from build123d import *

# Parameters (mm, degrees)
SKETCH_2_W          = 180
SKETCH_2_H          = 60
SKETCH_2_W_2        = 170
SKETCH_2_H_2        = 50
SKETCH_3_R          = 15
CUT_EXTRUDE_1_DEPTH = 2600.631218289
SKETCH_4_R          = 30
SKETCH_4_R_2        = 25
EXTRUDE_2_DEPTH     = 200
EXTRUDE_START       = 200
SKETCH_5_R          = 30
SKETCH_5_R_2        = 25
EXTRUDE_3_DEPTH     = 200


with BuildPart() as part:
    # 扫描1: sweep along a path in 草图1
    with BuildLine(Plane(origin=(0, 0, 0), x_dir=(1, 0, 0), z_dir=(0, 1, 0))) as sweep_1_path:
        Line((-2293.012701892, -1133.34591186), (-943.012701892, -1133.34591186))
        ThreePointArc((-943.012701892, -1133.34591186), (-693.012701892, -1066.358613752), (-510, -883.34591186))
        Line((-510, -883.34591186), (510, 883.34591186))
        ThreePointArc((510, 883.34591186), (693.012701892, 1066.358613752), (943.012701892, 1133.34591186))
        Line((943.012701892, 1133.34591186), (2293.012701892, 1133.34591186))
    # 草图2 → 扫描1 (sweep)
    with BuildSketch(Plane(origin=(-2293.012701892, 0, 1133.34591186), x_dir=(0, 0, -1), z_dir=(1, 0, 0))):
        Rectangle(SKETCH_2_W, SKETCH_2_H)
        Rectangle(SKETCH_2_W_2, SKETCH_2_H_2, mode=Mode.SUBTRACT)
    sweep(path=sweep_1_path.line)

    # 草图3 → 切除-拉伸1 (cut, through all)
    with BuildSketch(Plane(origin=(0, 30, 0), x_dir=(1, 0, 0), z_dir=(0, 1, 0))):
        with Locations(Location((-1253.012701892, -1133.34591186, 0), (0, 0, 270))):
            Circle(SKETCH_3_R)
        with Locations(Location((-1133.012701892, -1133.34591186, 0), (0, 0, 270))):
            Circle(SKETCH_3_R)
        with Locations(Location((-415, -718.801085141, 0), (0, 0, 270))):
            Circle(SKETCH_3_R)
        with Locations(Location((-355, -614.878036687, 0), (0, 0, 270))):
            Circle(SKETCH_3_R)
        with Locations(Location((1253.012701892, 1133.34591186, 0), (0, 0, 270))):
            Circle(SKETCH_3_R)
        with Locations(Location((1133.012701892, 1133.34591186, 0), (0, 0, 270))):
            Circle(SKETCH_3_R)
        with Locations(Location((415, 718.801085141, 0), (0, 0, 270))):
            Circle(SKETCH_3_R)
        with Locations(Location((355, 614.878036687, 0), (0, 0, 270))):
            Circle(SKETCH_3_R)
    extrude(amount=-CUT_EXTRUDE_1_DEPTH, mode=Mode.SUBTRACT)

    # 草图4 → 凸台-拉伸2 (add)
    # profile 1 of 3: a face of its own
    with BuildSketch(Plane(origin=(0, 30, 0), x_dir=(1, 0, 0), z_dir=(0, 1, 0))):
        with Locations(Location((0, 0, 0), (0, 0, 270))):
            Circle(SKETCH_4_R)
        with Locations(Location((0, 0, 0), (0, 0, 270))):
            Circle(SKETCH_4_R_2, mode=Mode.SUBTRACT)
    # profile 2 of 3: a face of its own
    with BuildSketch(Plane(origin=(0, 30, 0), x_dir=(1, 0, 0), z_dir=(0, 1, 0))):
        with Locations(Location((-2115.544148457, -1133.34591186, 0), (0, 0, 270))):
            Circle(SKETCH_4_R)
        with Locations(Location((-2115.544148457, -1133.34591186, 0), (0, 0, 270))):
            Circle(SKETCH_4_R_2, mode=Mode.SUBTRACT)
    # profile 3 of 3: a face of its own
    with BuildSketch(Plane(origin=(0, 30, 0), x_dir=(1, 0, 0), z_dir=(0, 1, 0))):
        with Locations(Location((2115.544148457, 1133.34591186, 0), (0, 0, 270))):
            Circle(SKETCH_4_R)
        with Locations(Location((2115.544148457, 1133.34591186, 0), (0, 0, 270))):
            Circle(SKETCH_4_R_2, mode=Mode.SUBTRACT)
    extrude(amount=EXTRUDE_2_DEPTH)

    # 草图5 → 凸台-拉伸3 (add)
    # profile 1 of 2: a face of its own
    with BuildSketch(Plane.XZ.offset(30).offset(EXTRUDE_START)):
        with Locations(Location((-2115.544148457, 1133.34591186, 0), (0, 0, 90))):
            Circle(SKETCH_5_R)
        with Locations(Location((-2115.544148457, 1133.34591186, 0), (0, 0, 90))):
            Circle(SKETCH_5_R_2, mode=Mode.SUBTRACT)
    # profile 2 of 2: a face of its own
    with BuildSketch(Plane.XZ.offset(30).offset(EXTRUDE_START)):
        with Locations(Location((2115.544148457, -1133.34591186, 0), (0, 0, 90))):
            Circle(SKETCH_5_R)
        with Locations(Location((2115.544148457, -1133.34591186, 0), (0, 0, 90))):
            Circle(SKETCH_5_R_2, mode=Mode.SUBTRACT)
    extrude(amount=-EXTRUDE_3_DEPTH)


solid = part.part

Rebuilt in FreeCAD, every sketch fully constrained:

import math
import FreeCAD as App
import Part
import Sketcher
from FreeCAD import Vector
Q = App.Units.Quantity

doc = App.newDocument("Part")
body = doc.addObject("PartDesign::Body", "Body")

# Sketch on YZ plane
sketch1 = body.newObject("Sketcher::SketchObject", "Sketch")
sketch1.AttachmentSupport = (doc.getObject("YZ_Plane"), [""])
sketch1.MapMode = "FlatFace"
sketch1.AttachmentOffset = App.Placement(Vector(0, 0, -2293.012702), App.Rotation())
sketch1.addGeometry(Part.LineSegment(Vector(30, 1223, 0), Vector(-30, 1223, 0)), False)
sketch1.addGeometry(Part.LineSegment(Vector(-30, 1223, 0), Vector(-30, 1043, 0)), False)
sketch1.addGeometry(Part.LineSegment(Vector(-30, 1043, 0), Vector(30, 1043, 0)), False)
sketch1.addGeometry(Part.LineSegment(Vector(30, 1043, 0), Vector(30, 1223, 0)), False)
sketch1.addGeometry(Part.LineSegment(Vector(-25, 1048, 0), Vector(-25, 1218, 0)), False)
sketch1.addGeometry(Part.LineSegment(Vector(-25, 1218, 0), Vector(25, 1218, 0)), False)
sketch1.addGeometry(Part.LineSegment(Vector(25, 1218, 0), Vector(25, 1048, 0)), False)
sketch1.addGeometry(Part.LineSegment(Vector(25, 1048, 0), Vector(-25, 1048, 0)), False)
sketch1.addConstraint(Sketcher.Constraint("Coincident", 0, 2, 1, 1))
sketch1.addConstraint(Sketcher.Constraint("Coincident", 1, 2, 2, 1))
sketch1.addConstraint(Sketcher.Constraint("Coincident", 2, 2, 3, 1))
sketch1.addConstraint(Sketcher.Constraint("Coincident", 3, 2, 0, 1))
sketch1.addConstraint(Sketcher.Constraint("Coincident", 4, 2, 5, 1))
sketch1.addConstraint(Sketcher.Constraint("Coincident", 5, 2, 6, 1))
sketch1.addConstraint(Sketcher.Constraint("Coincident", 6, 2, 7, 1))
sketch1.addConstraint(Sketcher.Constraint("Coincident", 7, 2, 4, 1))
sketch1.addConstraint(Sketcher.Constraint("Horizontal", 0))
sketch1.addConstraint(Sketcher.Constraint("Vertical", 1))
sketch1.addConstraint(Sketcher.Constraint("Horizontal", 2))
sketch1.addConstraint(Sketcher.Constraint("Vertical", 3))
sketch1.addConstraint(Sketcher.Constraint("Vertical", 4))
sketch1.addConstraint(Sketcher.Constraint("Horizontal", 5))
sketch1.addConstraint(Sketcher.Constraint("Vertical", 6))
sketch1.addConstraint(Sketcher.Constraint("Horizontal", 7))
sketch1.addConstraint(Sketcher.Constraint("DistanceX", 0, 2, 0, 1, 60.0))
sketch1.addConstraint(Sketcher.Constraint("DistanceX", 5, 1, 5, 2, 50.0))
sketch1.addConstraint(Sketcher.Constraint("DistanceY", 1, 2, 1, 1, 180.0))
sketch1.addConstraint(Sketcher.Constraint("DistanceY", 4, 1, 4, 2, 170.0))
sketch1.addConstraint(Sketcher.Constraint("DistanceX", 0, 2, -1, 1, 30.0))
sketch1.addConstraint(Sketcher.Constraint("DistanceX", 4, 2, -1, 1, 25.0))
sketch1.addConstraint(Sketcher.Constraint("DistanceY", 4, 2, 0, 2, 5.0))
sketch1.addConstraint(Sketcher.Constraint("DistanceY", -1, 1, 0, 2, 1223.345912))

# Sketch on XZ plane
sketch2 = body.newObject("Sketcher::SketchObject", "Sketch001")
sketch2.AttachmentSupport = (doc.getObject("XZ_Plane"), [""])
sketch2.MapMode = "FlatFace"
sketch2.addGeometry(Part.LineSegment(Vector(-2293, 1133, 0), Vector(-943, 1133, 0)), False)
sketch2.addGeometry(Part.ArcOfCircle(Part.Circle(Vector(-943, 633, 0), Vector(0, 0, 1), 500), math.radians(30), math.radians(90)), False)
sketch2.addGeometry(Part.LineSegment(Vector(-510, 883, 0), Vector(510, -883, 0)), False)
sketch2.addGeometry(Part.ArcOfCircle(Part.Circle(Vector(943, -633, 0), Vector(0, 0, 1), 500), math.radians(-150), math.radians(-90)), False)
sketch2.addGeometry(Part.LineSegment(Vector(943, -1133, 0), Vector(2293, -1133, 0)), False)
sketch2.addConstraint(Sketcher.Constraint("Tangent", 0, 2, 1, 2))
sketch2.addConstraint(Sketcher.Constraint("Tangent", 1, 1, 2, 1))
sketch2.addConstraint(Sketcher.Constraint("Tangent", 2, 2, 3, 1))
sketch2.addConstraint(Sketcher.Constraint("Tangent", 3, 2, 4, 1))
sketch2.addConstraint(Sketcher.Constraint("Horizontal", 0))
sketch2.addConstraint(Sketcher.Constraint("Horizontal", 4))
sketch2.addConstraint(Sketcher.Constraint("Equal", 1, 3))
sketch2.addConstraint(Sketcher.Constraint("Symmetric", 1, 3, 3, 3, -1, 1))
sketch2.addConstraint(Sketcher.Constraint("Equal", 0, 4))
sketch2.addConstraint(Sketcher.Constraint("Radius", 1, 500.0))
sketch2.addConstraint(Sketcher.Constraint("DistanceX", 0, 1, 0, 2, 1350.0))
sketch2.addConstraint(Sketcher.Constraint("Angle", 2, Q("-60 deg")))
sketch2.addConstraint(Sketcher.Constraint("Distance", 2, 2040.0))
doc.recompute()

additivepipe = body.newObject("PartDesign::AdditivePipe", "AdditivePipe")
additivepipe.Profile = sketch1
additivepipe.Spine = (sketch2, ["Edge1", "Edge2", "Edge3", "Edge4", "Edge5"])

# Sketch on XZ plane
sketch3 = body.newObject("Sketcher::SketchObject", "Sketch002")
sketch3.AttachmentSupport = (doc.getObject("XZ_Plane"), [""])
sketch3.MapMode = "FlatFace"
sketch3.AttachmentOffset = App.Placement(Vector(0, 0, -30), App.Rotation())
sketch3.addGeometry(Part.Circle(Vector(-1253, 1133, 0), Vector(0, 0, 1), 15), False)
sketch3.addGeometry(Part.Circle(Vector(-1133, 1133, 0), Vector(0, 0, 1), 15), False)
sketch3.addGeometry(Part.Circle(Vector(-415, 719, 0), Vector(0, 0, 1), 15), False)
sketch3.addGeometry(Part.Circle(Vector(-355, 615, 0), Vector(0, 0, 1), 15), False)
sketch3.addGeometry(Part.Circle(Vector(1253, -1133, 0), Vector(0, 0, 1), 15), False)
sketch3.addGeometry(Part.Circle(Vector(1133, -1133, 0), Vector(0, 0, 1), 15), False)
sketch3.addGeometry(Part.Circle(Vector(415, -719, 0), Vector(0, 0, 1), 15), False)
sketch3.addGeometry(Part.Circle(Vector(355, -615, 0), Vector(0, 0, 1), 15), False)
sketch3.addConstraint(Sketcher.Constraint("Equal", 0, 1))
sketch3.addConstraint(Sketcher.Constraint("Equal", 1, 2))
sketch3.addConstraint(Sketcher.Constraint("Equal", 2, 3))
sketch3.addConstraint(Sketcher.Constraint("Equal", 3, 4))
sketch3.addConstraint(Sketcher.Constraint("Equal", 4, 5))
sketch3.addConstraint(Sketcher.Constraint("Equal", 5, 6))
sketch3.addConstraint(Sketcher.Constraint("Equal", 6, 7))
sketch3.addConstraint(Sketcher.Constraint("Symmetric", 0, 3, 4, 3, -1, 1))
sketch3.addConstraint(Sketcher.Constraint("Symmetric", 1, 3, 5, 3, -1, 1))
sketch3.addConstraint(Sketcher.Constraint("Symmetric", 2, 3, 6, 3, -1, 1))
sketch3.addConstraint(Sketcher.Constraint("Symmetric", 3, 3, 7, 3, -1, 1))
sketch3.addConstraint(Sketcher.Constraint("Horizontal", 0, 3, 1, 3))
sketch3.addConstraint(Sketcher.Constraint("Diameter", 0, 30.0))
sketch3.addConstraint(Sketcher.Constraint("DistanceX", 2, 3, -1, 1, 415.0))
sketch3.addConstraint(Sketcher.Constraint("DistanceX", 3, 3, -1, 1, 355.0))
sketch3.addConstraint(Sketcher.Constraint("DistanceX", 0, 3, 1, 3, 120.0))
sketch3.addConstraint(Sketcher.Constraint("DistanceX", 0, 3, -1, 1, 1253.012702))
sketch3.addConstraint(Sketcher.Constraint("DistanceY", -1, 1, 0, 3, 1133.345912))
sketch3.addConstraint(Sketcher.Constraint("DistanceY", 3, 3, 2, 3, 103.923048))
sketch3.addConstraint(Sketcher.Constraint("DistanceY", 4, 3, 3, 3, 1748.223949))
pocket1 = body.newObject("PartDesign::Pocket", "Pocket")
pocket1.Profile = sketch3
pocket1.Type = "ThroughAll"
pocket1.Reversed = True

# Sketch on XZ plane
sketch4 = body.newObject("Sketcher::SketchObject", "Sketch003")
sketch4.AttachmentSupport = (doc.getObject("XZ_Plane"), [""])
sketch4.MapMode = "FlatFace"
sketch4.AttachmentOffset = App.Placement(Vector(0, 0, -30), App.Rotation())
sketch4.addGeometry(Part.Circle(Vector(0, 0, 0), Vector(0, 0, 1), 30), False)
sketch4.addGeometry(Part.Circle(Vector(0, 0, 0), Vector(0, 0, 1), 25), False)
sketch4.addGeometry(Part.Circle(Vector(-2116, 1133, 0), Vector(0, 0, 1), 30), False)
sketch4.addGeometry(Part.Circle(Vector(-2116, 1133, 0), Vector(0, 0, 1), 25), False)
sketch4.addGeometry(Part.Circle(Vector(2116, -1133, 0), Vector(0, 0, 1), 30), False)
sketch4.addGeometry(Part.Circle(Vector(2116, -1133, 0), Vector(0, 0, 1), 25), False)
sketch4.addConstraint(Sketcher.Constraint("Coincident", 0, 3, -1, 1))
sketch4.addConstraint(Sketcher.Constraint("Coincident", 1, 3, -1, 1))
sketch4.addConstraint(Sketcher.Constraint("Coincident", 3, 3, 2, 3))
sketch4.addConstraint(Sketcher.Constraint("Coincident", 5, 3, 4, 3))
sketch4.addConstraint(Sketcher.Constraint("Equal", 0, 2))
sketch4.addConstraint(Sketcher.Constraint("Equal", 1, 3))
sketch4.addConstraint(Sketcher.Constraint("Equal", 2, 4))
sketch4.addConstraint(Sketcher.Constraint("Equal", 3, 5))
sketch4.addConstraint(Sketcher.Constraint("Symmetric", 2, 3, 4, 3, -1, 1))
sketch4.addConstraint(Sketcher.Constraint("Diameter", 0, 60.0))
sketch4.addConstraint(Sketcher.Constraint("Diameter", 1, 50.0))
sketch4.addConstraint(Sketcher.Constraint("DistanceX", 2, 3, -1, 1, 2115.544148))
sketch4.addConstraint(Sketcher.Constraint("DistanceY", -1, 1, 2, 3, 1133.345912))
pad1 = body.newObject("PartDesign::Pad", "Pad")
pad1.Profile = sketch4
pad1.Length = 200
pad1.Reversed = True

# Sketch on XZ plane
sketch5 = body.newObject("Sketcher::SketchObject", "Sketch004")
sketch5.AttachmentSupport = (doc.getObject("XZ_Plane"), [""])
sketch5.MapMode = "FlatFace"
sketch5.AttachmentOffset = App.Placement(Vector(0, 0, 230), App.Rotation())
sketch5.addGeometry(Part.Circle(Vector(-2116, 1133, 0), Vector(0, 0, 1), 30), False)
sketch5.addGeometry(Part.Circle(Vector(-2116, 1133, 0), Vector(0, 0, 1), 25), False)
sketch5.addGeometry(Part.Circle(Vector(2116, -1133, 0), Vector(0, 0, 1), 30), False)
sketch5.addGeometry(Part.Circle(Vector(2116, -1133, 0), Vector(0, 0, 1), 25), False)
sketch5.addConstraint(Sketcher.Constraint("Coincident", 1, 3, 0, 3))
sketch5.addConstraint(Sketcher.Constraint("Coincident", 3, 3, 2, 3))
sketch5.addConstraint(Sketcher.Constraint("Equal", 0, 2))
sketch5.addConstraint(Sketcher.Constraint("Equal", 1, 3))
sketch5.addConstraint(Sketcher.Constraint("Symmetric", 0, 3, 2, 3, -1, 1))
sketch5.addConstraint(Sketcher.Constraint("Diameter", 0, 60.0))
sketch5.addConstraint(Sketcher.Constraint("Diameter", 1, 50.0))
sketch5.addConstraint(Sketcher.Constraint("DistanceX", 0, 3, -1, 1, 2115.544148))
sketch5.addConstraint(Sketcher.Constraint("DistanceY", -1, 1, 0, 3, 1133.345912))
pad2 = body.newObject("PartDesign::Pad", "Pad001")
pad2.Profile = sketch5
pad2.Length = 200
pad2.Reversed = True

doc.recompute()
